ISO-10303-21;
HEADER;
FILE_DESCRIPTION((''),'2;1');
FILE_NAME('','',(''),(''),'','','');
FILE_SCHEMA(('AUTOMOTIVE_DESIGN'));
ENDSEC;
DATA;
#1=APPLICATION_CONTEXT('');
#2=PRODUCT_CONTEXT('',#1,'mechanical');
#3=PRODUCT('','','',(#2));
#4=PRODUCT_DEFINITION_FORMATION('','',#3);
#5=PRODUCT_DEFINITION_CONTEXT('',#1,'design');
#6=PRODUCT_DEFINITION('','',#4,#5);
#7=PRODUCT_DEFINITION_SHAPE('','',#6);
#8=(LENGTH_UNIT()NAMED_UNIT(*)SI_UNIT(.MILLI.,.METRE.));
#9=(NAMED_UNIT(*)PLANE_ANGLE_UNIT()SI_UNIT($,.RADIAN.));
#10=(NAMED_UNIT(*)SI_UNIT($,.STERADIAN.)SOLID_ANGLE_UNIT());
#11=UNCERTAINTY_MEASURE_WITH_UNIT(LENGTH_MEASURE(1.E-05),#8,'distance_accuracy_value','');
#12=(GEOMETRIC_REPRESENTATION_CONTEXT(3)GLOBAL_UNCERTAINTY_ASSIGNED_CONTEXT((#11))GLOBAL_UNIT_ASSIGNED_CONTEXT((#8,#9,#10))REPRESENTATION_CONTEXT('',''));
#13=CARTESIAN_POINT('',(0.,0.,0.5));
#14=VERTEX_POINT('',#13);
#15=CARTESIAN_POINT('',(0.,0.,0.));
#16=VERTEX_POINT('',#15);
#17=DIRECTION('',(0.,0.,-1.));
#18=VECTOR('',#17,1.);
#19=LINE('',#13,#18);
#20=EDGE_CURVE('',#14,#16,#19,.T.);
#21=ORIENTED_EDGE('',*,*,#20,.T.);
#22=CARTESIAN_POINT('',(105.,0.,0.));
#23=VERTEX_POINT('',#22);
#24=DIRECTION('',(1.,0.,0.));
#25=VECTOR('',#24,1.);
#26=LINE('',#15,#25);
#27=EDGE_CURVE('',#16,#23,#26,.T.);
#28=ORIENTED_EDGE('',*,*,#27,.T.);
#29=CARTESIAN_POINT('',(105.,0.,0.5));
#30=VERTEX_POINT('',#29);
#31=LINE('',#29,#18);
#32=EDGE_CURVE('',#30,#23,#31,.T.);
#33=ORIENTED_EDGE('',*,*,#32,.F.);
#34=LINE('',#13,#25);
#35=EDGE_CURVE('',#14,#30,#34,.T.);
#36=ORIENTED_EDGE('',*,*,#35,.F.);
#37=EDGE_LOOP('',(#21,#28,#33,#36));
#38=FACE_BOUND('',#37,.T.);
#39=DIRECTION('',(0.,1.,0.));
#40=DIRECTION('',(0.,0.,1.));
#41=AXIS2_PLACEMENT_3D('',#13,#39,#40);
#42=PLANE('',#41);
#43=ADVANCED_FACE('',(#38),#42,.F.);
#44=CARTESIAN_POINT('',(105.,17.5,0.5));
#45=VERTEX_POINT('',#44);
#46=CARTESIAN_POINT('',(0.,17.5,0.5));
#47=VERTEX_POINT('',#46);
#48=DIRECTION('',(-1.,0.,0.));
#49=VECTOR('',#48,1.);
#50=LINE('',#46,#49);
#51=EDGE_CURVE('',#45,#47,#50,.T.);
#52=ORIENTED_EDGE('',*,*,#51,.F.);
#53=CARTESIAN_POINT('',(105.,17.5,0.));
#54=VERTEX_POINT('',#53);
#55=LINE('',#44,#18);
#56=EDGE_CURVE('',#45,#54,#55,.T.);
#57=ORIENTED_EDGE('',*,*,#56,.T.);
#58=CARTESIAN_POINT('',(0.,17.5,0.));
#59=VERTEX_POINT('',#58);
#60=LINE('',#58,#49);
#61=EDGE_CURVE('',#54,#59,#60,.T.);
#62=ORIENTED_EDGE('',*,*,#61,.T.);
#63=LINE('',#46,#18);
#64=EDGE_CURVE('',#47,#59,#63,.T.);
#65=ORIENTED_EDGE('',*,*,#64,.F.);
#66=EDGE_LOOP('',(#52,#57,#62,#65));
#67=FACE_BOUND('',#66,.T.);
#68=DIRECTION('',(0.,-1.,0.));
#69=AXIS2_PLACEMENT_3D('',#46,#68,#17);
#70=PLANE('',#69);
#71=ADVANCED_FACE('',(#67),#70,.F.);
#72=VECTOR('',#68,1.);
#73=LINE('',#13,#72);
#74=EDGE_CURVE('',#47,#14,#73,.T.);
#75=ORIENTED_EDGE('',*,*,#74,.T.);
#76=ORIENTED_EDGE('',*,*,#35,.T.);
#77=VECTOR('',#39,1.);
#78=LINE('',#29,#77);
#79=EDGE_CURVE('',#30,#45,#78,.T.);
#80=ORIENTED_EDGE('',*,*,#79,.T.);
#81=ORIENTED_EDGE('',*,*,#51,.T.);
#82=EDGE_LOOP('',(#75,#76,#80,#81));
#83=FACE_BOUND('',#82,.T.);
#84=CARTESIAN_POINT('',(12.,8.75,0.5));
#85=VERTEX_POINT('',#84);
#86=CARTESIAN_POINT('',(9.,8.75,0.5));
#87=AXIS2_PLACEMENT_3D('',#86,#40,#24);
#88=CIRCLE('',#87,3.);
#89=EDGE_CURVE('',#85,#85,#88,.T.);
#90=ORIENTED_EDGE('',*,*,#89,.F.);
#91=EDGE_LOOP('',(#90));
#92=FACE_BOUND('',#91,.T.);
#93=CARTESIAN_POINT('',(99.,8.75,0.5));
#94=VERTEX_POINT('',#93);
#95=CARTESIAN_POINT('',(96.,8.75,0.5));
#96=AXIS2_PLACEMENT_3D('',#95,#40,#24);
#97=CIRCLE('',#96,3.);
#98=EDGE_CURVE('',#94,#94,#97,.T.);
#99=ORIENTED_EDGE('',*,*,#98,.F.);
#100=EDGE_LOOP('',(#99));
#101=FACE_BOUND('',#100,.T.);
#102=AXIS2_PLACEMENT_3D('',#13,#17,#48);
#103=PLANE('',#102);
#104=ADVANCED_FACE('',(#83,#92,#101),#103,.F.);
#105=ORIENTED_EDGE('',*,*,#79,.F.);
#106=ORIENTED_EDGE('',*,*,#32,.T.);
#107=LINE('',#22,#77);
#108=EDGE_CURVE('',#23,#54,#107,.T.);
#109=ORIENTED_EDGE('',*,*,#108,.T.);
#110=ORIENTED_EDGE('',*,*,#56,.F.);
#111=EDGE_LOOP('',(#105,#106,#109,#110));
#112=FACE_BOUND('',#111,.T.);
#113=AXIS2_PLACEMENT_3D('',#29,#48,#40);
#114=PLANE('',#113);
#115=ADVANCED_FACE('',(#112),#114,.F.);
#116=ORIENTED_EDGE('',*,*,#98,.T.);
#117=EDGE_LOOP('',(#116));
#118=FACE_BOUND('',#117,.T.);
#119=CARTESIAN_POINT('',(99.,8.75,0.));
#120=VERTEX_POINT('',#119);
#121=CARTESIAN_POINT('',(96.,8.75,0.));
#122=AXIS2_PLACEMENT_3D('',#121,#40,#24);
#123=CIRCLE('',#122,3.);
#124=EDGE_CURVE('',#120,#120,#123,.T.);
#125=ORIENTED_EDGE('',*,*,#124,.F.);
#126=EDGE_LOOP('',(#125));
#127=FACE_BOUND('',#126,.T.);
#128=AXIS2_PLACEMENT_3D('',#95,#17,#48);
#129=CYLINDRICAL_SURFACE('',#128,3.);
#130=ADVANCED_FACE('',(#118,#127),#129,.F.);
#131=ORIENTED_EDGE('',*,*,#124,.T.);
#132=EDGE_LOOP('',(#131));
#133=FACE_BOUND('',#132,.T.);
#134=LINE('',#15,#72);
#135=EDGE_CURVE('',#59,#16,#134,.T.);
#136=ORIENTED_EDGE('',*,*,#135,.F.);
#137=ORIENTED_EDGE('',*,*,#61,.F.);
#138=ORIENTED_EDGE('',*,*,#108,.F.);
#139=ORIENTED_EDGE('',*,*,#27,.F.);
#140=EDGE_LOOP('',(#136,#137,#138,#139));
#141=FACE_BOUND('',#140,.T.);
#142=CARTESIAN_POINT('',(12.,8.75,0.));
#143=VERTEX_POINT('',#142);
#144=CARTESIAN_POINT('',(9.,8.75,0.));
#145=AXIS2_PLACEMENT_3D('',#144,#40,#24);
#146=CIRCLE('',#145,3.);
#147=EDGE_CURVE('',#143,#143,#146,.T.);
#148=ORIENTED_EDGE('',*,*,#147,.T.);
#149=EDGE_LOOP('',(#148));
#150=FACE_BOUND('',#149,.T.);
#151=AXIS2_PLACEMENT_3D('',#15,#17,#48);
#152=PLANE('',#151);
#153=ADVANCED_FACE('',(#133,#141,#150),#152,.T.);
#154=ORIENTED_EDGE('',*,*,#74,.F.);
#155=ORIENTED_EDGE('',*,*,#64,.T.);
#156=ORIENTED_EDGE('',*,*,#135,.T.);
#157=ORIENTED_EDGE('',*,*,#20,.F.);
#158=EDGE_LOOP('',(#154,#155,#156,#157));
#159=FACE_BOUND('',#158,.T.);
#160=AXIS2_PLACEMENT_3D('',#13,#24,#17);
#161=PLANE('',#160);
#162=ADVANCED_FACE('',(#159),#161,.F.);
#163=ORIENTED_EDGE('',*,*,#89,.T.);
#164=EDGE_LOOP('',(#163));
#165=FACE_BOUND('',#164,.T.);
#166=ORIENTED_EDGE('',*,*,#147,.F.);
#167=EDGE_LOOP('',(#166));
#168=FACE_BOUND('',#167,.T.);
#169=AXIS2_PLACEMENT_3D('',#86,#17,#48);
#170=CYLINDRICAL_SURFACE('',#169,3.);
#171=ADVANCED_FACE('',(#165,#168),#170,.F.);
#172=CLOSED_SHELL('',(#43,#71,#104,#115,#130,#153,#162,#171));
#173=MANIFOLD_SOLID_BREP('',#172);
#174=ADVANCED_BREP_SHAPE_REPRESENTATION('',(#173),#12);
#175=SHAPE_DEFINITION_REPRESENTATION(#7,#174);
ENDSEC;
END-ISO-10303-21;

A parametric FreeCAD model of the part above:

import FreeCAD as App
import Part
import Sketcher

V = App.Vector
Q = App.Units.Quantity


def add_polygon(sketch, points):
    """Adds a closed chain of lines whose ends are joined by coincident constraints."""
    first, n = sketch.GeometryCount, len(points)
    for a, b in zip(points, points[1:] + points[:1]):
        sketch.addGeometry(Part.LineSegment(App.Vector(*a, 0), App.Vector(*b, 0)), False)
    for i in range(n):
        sketch.addConstraint(Sketcher.Constraint("Coincident", first + i, 2, first + (i + 1) % n, 1))

doc = App.newDocument("Part")
body = doc.addObject("PartDesign::Body", "Body")

# Sketch on XY plane
sketch1 = body.newObject("Sketcher::SketchObject", "Sketch")
sketch1.AttachmentSupport = (doc.getObject("XY_Plane"), [""])
sketch1.MapMode = "FlatFace"
add_polygon(sketch1, [(0, 17.5), (0, 0), (105, 0), (105, 17.5)])  # lines 0-3
sketch1.addGeometry(Part.Circle(V(9, 8.8, 0), V(0, 0, 1), 3), False)  # 4
sketch1.addGeometry(Part.Circle(V(96, 8.8, 0), V(0, 0, 1), 3), False)  # 5
sketch1.addConstraint(Sketcher.Constraint("Vertical", 0))
sketch1.addConstraint(Sketcher.Constraint("Horizontal", 1))
sketch1.addConstraint(Sketcher.Constraint("Vertical", 2))
sketch1.addConstraint(Sketcher.Constraint("Horizontal", 3))
sketch1.addConstraint(Sketcher.Constraint("Coincident", 0, 2, -1, 1))
sketch1.addConstraint(Sketcher.Constraint("Equal", 4, 5))
sketch1.addConstraint(Sketcher.Constraint("Horizontal", 4, 3, 5, 3))
sketch1.addConstraint(Sketcher.Constraint("Diameter", 4, Q("6 mm")))
sketch1.addConstraint(Sketcher.Constraint("DistanceX", 1, 1, 1, 2, Q("105 mm")))
sketch1.addConstraint(Sketcher.Constraint("DistanceY", 0, 2, 0, 1, Q("17.5 mm")))
sketch1.addConstraint(Sketcher.Constraint("DistanceX", -1, 1, 4, 3, Q("9 mm")))
sketch1.addConstraint(Sketcher.Constraint("DistanceX", -1, 1, 5, 3, Q("96 mm")))
sketch1.addConstraint(Sketcher.Constraint("DistanceY", -1, 1, 4, 3, Q("8.75 mm")))
pad1 = body.newObject("PartDesign::Pad", "Pad")
pad1.Profile = sketch1
pad1.Length = 0.5

doc.recompute()
